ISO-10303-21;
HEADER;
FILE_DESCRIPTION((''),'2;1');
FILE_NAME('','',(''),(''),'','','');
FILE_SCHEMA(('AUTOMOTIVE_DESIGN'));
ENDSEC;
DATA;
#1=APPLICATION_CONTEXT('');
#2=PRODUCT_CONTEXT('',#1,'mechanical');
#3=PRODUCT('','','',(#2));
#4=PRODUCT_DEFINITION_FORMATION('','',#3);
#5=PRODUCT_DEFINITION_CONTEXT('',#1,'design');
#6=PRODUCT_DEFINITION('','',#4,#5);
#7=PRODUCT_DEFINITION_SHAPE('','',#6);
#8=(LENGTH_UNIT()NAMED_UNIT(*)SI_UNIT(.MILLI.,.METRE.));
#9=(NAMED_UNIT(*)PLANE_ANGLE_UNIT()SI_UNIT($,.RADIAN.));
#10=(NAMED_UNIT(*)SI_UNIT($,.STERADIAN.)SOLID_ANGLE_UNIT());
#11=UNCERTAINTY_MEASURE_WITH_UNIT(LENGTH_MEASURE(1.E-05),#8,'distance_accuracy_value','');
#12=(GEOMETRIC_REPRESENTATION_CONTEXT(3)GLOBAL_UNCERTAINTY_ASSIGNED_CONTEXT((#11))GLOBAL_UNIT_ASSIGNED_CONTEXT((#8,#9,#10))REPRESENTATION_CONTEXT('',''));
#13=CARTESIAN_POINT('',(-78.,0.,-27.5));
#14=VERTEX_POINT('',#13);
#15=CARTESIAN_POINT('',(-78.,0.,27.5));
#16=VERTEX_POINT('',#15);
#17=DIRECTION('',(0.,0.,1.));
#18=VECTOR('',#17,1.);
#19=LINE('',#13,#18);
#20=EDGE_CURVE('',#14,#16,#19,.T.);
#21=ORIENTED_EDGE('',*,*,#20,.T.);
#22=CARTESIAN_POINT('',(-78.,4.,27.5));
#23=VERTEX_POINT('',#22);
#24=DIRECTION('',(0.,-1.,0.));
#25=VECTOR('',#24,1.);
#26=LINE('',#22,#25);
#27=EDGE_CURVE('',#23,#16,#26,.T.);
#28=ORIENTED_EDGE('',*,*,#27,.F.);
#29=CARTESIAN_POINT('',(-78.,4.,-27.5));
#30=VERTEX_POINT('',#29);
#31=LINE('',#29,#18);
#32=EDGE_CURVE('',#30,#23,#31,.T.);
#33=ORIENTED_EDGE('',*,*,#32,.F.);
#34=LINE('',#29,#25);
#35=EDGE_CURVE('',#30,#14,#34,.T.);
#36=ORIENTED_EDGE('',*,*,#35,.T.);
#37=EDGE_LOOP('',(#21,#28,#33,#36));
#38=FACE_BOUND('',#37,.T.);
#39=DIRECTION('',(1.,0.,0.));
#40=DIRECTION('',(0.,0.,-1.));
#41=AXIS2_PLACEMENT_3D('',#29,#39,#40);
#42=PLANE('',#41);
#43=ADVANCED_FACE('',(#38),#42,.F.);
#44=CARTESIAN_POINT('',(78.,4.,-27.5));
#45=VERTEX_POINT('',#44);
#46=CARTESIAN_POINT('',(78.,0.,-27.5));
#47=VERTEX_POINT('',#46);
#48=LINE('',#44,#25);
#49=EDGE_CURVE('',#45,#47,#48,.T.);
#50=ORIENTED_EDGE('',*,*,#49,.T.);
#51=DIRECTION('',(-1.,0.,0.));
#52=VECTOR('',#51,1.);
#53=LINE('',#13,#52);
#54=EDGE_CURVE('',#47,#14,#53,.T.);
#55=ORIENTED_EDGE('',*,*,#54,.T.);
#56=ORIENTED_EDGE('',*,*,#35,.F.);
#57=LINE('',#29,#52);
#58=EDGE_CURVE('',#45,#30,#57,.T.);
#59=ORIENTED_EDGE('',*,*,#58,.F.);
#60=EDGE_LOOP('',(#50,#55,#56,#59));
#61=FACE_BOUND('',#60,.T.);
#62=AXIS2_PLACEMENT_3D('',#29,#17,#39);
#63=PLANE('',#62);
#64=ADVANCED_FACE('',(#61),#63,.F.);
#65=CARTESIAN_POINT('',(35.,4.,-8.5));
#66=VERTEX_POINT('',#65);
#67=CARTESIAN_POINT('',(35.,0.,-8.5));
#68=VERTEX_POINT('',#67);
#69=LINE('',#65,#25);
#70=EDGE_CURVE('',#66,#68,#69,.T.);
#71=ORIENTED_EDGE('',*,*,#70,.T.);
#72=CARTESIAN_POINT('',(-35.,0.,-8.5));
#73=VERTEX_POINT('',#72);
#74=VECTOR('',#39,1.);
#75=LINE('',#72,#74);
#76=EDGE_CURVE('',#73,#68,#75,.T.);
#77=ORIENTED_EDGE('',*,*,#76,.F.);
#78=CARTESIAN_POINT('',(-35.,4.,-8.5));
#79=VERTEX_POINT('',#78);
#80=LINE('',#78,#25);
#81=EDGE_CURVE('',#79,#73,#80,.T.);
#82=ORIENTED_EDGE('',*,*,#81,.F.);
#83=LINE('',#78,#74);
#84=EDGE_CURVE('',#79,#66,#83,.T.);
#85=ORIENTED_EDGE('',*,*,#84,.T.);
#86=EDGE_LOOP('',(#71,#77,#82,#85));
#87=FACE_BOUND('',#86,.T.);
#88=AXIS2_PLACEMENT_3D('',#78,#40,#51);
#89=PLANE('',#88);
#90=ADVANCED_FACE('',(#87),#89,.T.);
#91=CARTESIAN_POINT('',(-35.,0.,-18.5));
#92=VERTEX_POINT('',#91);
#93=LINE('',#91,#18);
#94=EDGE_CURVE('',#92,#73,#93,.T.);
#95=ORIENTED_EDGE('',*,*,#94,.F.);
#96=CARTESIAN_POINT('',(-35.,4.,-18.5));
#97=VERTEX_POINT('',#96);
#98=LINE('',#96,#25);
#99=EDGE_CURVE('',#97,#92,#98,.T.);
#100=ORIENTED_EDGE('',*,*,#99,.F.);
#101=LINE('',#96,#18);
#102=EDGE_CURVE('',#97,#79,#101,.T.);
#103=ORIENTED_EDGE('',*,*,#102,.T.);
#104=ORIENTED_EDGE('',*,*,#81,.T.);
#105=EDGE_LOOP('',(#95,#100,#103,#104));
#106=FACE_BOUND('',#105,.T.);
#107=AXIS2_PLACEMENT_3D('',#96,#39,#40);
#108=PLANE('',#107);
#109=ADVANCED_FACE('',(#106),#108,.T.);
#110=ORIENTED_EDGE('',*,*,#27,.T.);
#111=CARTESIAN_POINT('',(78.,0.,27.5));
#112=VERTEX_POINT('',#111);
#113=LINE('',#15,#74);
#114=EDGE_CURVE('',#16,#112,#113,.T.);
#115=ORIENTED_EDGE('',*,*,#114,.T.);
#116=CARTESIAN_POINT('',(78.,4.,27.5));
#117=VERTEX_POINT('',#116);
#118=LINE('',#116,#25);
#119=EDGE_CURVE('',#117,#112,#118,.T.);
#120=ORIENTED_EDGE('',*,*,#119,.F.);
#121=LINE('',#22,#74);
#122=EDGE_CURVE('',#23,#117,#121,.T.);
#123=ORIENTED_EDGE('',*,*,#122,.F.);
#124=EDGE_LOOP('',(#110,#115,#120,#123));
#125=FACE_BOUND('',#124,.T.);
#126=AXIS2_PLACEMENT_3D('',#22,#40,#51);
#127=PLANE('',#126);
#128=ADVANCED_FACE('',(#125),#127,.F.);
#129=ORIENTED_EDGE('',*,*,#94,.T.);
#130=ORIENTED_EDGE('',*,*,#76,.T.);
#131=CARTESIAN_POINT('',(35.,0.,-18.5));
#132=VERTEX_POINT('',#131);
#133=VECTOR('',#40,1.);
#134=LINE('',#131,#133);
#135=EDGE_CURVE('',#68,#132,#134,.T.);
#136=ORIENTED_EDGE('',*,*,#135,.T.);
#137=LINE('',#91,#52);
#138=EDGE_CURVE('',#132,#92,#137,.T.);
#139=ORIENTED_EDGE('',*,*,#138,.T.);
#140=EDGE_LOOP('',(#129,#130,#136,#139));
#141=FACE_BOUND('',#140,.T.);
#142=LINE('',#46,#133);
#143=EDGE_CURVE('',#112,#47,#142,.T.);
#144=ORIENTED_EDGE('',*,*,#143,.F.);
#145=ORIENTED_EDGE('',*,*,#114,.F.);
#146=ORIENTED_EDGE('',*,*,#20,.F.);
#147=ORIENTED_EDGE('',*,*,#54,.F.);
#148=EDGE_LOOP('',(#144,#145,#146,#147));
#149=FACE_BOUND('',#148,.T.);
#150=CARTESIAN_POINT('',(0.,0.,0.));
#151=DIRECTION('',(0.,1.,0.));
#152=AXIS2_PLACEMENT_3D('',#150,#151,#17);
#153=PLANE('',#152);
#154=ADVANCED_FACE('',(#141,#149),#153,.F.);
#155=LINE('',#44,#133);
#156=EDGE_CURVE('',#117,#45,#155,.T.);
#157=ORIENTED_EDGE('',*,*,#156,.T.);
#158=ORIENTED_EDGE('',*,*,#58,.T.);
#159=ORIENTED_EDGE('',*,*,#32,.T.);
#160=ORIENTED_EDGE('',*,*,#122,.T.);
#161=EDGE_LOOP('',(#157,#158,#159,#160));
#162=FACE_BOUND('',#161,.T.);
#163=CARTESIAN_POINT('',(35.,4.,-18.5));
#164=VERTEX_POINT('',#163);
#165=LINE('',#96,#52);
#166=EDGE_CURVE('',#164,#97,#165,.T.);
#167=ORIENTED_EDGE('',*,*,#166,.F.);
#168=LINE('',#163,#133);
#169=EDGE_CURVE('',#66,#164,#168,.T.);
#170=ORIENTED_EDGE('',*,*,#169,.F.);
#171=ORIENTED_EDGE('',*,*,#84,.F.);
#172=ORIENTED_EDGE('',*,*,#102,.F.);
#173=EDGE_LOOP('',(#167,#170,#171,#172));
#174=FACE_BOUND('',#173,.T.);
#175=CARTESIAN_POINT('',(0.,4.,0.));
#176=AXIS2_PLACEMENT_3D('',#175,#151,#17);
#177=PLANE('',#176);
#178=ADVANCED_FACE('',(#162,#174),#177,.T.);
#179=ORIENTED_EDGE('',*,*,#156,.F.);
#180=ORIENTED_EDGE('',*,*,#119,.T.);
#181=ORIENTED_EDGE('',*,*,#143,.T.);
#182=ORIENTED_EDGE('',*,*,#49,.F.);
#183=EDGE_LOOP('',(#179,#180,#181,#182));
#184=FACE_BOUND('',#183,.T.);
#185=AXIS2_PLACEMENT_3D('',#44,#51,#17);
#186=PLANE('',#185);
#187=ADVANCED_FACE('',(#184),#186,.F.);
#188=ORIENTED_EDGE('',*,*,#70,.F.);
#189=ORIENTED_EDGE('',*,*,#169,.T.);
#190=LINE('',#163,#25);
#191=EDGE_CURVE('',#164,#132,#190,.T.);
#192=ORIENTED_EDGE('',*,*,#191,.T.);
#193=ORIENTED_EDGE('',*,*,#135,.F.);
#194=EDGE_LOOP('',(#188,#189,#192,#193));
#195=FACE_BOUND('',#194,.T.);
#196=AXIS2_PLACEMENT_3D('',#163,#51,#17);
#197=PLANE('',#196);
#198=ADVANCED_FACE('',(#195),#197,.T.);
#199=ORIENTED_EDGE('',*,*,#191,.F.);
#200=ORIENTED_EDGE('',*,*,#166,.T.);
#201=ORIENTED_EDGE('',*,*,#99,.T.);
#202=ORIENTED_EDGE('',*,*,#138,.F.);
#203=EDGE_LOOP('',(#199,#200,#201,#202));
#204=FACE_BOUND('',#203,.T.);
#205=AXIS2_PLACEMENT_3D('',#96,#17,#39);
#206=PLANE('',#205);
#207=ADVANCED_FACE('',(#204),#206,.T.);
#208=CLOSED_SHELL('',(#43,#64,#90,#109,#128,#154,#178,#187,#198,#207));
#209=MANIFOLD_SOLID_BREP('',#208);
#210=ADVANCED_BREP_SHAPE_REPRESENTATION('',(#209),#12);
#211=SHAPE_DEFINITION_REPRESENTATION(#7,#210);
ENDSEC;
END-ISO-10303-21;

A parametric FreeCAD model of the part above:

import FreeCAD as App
import Part
import Sketcher

V = App.Vector
Q = App.Units.Quantity


def add_polygon(sketch, points):
    """Adds a closed chain of lines whose ends are joined by coincident constraints."""
    first, n = sketch.GeometryCount, len(points)
    for a, b in zip(points, points[1:] + points[:1]):
        sketch.addGeometry(Part.LineSegment(App.Vector(*a, 0), App.Vector(*b, 0)), False)
    for i in range(n):
        sketch.addConstraint(Sketcher.Constraint("Coincident", first + i, 2, first + (i + 1) % n, 1))

doc = App.newDocument("Part")
body = doc.addObject("PartDesign::Body", "Body")

sketch1 = body.newObject("Sketcher::SketchObject", "Sketch")
sketch1.AttachmentSupport = (doc.getObject("XZ_Plane"), [""])
sketch1.MapMode = "FlatFace"
add_polygon(sketch1, [(-78, -28), (-78, 28), (78, 28), (78, -28)])
add_polygon(sketch1, [(35, -8), (-35, -8), (-35, -18), (35, -18)])
sketch1.addConstraint(Sketcher.Constraint("Vertical", 0))
sketch1.addConstraint(Sketcher.Constraint("Horizontal", 1))
sketch1.addConstraint(Sketcher.Constraint("Vertical", 2))
sketch1.addConstraint(Sketcher.Constraint("Horizontal", 3))
sketch1.addConstraint(Sketcher.Constraint("Horizontal", 4))
sketch1.addConstraint(Sketcher.Constraint("Vertical", 5))
sketch1.addConstraint(Sketcher.Constraint("Horizontal", 6))
sketch1.addConstraint(Sketcher.Constraint("Vertical", 7))
sketch1.addConstraint(Sketcher.Constraint("Symmetric", 0, 2, 2, 2, -1, 1))
sketch1.addConstraint(Sketcher.Constraint("DistanceX", 1, 1, 1, 2, Q("156 mm")))
sketch1.addConstraint(Sketcher.Constraint("DistanceX", 4, 2, 4, 1, Q("70 mm")))
sketch1.addConstraint(Sketcher.Constraint("DistanceY", 0, 1, 0, 2, Q("55 mm")))
sketch1.addConstraint(Sketcher.Constraint("DistanceY", 5, 2, 5, 1, Q("10 mm")))
sketch1.addConstraint(Sketcher.Constraint("DistanceX", 4, 2, -1, 1, Q("35 mm")))
sketch1.addConstraint(Sketcher.Constraint("DistanceY", 3, 2, 4, 2, Q("19 mm")))
pad1 = body.newObject("PartDesign::Pad", "Pad")
pad1.Profile = sketch1
pad1.Length = 4
pad1.Reversed = True

sketch2 = body.newObject("Sketcher::SketchObject", "Sketch001")
sketch2.AttachmentSupport = (doc.getObject("XZ_Plane"), [""])
sketch2.MapMode = "FlatFace"
add_polygon(sketch2, [(-78, -28), (-78, 28), (78, 28), (78, -28)])
add_polygon(sketch2, [(35, -8), (-35, -8), (-35, -18), (35, -18)])
sketch2.addConstraint(Sketcher.Constraint("Vertical", 0))
sketch2.addConstraint(Sketcher.Constraint("Horizontal", 1))
sketch2.addConstraint(Sketcher.Constraint("Vertical", 2))
sketch2.addConstraint(Sketcher.Constraint("Horizontal", 3))
sketch2.addConstraint(Sketcher.Constraint("Horizontal", 4))
sketch2.addConstraint(Sketcher.Constraint("Vertical", 5))
sketch2.addConstraint(Sketcher.Constraint("Horizontal", 6))
sketch2.addConstraint(Sketcher.Constraint("Vertical", 7))
sketch2.addConstraint(Sketcher.Constraint("Symmetric", 0, 2, 2, 2, -1, 1))
sketch2.addConstraint(Sketcher.Constraint("DistanceX", 1, 1, 1, 2, Q("156 mm")))
sketch2.addConstraint(Sketcher.Constraint("DistanceX", 4, 2, 4, 1, Q("70 mm")))
sketch2.addConstraint(Sketcher.Constraint("DistanceY", 0, 1, 0, 2, Q("55 mm")))
sketch2.addConstraint(Sketcher.Constraint("DistanceY", 5, 2, 5, 1, Q("10 mm")))
sketch2.addConstraint(Sketcher.Constraint("DistanceX", 4, 2, -1, 1, Q("35 mm")))
sketch2.addConstraint(Sketcher.Constraint("DistanceY", 3, 2, 4, 2, Q("19 mm")))
pad2 = body.newObject("PartDesign::Pad", "Pad001")
pad2.Profile = sketch2
pad2.Length = 4
pad2.Reversed = True

doc.recompute()
